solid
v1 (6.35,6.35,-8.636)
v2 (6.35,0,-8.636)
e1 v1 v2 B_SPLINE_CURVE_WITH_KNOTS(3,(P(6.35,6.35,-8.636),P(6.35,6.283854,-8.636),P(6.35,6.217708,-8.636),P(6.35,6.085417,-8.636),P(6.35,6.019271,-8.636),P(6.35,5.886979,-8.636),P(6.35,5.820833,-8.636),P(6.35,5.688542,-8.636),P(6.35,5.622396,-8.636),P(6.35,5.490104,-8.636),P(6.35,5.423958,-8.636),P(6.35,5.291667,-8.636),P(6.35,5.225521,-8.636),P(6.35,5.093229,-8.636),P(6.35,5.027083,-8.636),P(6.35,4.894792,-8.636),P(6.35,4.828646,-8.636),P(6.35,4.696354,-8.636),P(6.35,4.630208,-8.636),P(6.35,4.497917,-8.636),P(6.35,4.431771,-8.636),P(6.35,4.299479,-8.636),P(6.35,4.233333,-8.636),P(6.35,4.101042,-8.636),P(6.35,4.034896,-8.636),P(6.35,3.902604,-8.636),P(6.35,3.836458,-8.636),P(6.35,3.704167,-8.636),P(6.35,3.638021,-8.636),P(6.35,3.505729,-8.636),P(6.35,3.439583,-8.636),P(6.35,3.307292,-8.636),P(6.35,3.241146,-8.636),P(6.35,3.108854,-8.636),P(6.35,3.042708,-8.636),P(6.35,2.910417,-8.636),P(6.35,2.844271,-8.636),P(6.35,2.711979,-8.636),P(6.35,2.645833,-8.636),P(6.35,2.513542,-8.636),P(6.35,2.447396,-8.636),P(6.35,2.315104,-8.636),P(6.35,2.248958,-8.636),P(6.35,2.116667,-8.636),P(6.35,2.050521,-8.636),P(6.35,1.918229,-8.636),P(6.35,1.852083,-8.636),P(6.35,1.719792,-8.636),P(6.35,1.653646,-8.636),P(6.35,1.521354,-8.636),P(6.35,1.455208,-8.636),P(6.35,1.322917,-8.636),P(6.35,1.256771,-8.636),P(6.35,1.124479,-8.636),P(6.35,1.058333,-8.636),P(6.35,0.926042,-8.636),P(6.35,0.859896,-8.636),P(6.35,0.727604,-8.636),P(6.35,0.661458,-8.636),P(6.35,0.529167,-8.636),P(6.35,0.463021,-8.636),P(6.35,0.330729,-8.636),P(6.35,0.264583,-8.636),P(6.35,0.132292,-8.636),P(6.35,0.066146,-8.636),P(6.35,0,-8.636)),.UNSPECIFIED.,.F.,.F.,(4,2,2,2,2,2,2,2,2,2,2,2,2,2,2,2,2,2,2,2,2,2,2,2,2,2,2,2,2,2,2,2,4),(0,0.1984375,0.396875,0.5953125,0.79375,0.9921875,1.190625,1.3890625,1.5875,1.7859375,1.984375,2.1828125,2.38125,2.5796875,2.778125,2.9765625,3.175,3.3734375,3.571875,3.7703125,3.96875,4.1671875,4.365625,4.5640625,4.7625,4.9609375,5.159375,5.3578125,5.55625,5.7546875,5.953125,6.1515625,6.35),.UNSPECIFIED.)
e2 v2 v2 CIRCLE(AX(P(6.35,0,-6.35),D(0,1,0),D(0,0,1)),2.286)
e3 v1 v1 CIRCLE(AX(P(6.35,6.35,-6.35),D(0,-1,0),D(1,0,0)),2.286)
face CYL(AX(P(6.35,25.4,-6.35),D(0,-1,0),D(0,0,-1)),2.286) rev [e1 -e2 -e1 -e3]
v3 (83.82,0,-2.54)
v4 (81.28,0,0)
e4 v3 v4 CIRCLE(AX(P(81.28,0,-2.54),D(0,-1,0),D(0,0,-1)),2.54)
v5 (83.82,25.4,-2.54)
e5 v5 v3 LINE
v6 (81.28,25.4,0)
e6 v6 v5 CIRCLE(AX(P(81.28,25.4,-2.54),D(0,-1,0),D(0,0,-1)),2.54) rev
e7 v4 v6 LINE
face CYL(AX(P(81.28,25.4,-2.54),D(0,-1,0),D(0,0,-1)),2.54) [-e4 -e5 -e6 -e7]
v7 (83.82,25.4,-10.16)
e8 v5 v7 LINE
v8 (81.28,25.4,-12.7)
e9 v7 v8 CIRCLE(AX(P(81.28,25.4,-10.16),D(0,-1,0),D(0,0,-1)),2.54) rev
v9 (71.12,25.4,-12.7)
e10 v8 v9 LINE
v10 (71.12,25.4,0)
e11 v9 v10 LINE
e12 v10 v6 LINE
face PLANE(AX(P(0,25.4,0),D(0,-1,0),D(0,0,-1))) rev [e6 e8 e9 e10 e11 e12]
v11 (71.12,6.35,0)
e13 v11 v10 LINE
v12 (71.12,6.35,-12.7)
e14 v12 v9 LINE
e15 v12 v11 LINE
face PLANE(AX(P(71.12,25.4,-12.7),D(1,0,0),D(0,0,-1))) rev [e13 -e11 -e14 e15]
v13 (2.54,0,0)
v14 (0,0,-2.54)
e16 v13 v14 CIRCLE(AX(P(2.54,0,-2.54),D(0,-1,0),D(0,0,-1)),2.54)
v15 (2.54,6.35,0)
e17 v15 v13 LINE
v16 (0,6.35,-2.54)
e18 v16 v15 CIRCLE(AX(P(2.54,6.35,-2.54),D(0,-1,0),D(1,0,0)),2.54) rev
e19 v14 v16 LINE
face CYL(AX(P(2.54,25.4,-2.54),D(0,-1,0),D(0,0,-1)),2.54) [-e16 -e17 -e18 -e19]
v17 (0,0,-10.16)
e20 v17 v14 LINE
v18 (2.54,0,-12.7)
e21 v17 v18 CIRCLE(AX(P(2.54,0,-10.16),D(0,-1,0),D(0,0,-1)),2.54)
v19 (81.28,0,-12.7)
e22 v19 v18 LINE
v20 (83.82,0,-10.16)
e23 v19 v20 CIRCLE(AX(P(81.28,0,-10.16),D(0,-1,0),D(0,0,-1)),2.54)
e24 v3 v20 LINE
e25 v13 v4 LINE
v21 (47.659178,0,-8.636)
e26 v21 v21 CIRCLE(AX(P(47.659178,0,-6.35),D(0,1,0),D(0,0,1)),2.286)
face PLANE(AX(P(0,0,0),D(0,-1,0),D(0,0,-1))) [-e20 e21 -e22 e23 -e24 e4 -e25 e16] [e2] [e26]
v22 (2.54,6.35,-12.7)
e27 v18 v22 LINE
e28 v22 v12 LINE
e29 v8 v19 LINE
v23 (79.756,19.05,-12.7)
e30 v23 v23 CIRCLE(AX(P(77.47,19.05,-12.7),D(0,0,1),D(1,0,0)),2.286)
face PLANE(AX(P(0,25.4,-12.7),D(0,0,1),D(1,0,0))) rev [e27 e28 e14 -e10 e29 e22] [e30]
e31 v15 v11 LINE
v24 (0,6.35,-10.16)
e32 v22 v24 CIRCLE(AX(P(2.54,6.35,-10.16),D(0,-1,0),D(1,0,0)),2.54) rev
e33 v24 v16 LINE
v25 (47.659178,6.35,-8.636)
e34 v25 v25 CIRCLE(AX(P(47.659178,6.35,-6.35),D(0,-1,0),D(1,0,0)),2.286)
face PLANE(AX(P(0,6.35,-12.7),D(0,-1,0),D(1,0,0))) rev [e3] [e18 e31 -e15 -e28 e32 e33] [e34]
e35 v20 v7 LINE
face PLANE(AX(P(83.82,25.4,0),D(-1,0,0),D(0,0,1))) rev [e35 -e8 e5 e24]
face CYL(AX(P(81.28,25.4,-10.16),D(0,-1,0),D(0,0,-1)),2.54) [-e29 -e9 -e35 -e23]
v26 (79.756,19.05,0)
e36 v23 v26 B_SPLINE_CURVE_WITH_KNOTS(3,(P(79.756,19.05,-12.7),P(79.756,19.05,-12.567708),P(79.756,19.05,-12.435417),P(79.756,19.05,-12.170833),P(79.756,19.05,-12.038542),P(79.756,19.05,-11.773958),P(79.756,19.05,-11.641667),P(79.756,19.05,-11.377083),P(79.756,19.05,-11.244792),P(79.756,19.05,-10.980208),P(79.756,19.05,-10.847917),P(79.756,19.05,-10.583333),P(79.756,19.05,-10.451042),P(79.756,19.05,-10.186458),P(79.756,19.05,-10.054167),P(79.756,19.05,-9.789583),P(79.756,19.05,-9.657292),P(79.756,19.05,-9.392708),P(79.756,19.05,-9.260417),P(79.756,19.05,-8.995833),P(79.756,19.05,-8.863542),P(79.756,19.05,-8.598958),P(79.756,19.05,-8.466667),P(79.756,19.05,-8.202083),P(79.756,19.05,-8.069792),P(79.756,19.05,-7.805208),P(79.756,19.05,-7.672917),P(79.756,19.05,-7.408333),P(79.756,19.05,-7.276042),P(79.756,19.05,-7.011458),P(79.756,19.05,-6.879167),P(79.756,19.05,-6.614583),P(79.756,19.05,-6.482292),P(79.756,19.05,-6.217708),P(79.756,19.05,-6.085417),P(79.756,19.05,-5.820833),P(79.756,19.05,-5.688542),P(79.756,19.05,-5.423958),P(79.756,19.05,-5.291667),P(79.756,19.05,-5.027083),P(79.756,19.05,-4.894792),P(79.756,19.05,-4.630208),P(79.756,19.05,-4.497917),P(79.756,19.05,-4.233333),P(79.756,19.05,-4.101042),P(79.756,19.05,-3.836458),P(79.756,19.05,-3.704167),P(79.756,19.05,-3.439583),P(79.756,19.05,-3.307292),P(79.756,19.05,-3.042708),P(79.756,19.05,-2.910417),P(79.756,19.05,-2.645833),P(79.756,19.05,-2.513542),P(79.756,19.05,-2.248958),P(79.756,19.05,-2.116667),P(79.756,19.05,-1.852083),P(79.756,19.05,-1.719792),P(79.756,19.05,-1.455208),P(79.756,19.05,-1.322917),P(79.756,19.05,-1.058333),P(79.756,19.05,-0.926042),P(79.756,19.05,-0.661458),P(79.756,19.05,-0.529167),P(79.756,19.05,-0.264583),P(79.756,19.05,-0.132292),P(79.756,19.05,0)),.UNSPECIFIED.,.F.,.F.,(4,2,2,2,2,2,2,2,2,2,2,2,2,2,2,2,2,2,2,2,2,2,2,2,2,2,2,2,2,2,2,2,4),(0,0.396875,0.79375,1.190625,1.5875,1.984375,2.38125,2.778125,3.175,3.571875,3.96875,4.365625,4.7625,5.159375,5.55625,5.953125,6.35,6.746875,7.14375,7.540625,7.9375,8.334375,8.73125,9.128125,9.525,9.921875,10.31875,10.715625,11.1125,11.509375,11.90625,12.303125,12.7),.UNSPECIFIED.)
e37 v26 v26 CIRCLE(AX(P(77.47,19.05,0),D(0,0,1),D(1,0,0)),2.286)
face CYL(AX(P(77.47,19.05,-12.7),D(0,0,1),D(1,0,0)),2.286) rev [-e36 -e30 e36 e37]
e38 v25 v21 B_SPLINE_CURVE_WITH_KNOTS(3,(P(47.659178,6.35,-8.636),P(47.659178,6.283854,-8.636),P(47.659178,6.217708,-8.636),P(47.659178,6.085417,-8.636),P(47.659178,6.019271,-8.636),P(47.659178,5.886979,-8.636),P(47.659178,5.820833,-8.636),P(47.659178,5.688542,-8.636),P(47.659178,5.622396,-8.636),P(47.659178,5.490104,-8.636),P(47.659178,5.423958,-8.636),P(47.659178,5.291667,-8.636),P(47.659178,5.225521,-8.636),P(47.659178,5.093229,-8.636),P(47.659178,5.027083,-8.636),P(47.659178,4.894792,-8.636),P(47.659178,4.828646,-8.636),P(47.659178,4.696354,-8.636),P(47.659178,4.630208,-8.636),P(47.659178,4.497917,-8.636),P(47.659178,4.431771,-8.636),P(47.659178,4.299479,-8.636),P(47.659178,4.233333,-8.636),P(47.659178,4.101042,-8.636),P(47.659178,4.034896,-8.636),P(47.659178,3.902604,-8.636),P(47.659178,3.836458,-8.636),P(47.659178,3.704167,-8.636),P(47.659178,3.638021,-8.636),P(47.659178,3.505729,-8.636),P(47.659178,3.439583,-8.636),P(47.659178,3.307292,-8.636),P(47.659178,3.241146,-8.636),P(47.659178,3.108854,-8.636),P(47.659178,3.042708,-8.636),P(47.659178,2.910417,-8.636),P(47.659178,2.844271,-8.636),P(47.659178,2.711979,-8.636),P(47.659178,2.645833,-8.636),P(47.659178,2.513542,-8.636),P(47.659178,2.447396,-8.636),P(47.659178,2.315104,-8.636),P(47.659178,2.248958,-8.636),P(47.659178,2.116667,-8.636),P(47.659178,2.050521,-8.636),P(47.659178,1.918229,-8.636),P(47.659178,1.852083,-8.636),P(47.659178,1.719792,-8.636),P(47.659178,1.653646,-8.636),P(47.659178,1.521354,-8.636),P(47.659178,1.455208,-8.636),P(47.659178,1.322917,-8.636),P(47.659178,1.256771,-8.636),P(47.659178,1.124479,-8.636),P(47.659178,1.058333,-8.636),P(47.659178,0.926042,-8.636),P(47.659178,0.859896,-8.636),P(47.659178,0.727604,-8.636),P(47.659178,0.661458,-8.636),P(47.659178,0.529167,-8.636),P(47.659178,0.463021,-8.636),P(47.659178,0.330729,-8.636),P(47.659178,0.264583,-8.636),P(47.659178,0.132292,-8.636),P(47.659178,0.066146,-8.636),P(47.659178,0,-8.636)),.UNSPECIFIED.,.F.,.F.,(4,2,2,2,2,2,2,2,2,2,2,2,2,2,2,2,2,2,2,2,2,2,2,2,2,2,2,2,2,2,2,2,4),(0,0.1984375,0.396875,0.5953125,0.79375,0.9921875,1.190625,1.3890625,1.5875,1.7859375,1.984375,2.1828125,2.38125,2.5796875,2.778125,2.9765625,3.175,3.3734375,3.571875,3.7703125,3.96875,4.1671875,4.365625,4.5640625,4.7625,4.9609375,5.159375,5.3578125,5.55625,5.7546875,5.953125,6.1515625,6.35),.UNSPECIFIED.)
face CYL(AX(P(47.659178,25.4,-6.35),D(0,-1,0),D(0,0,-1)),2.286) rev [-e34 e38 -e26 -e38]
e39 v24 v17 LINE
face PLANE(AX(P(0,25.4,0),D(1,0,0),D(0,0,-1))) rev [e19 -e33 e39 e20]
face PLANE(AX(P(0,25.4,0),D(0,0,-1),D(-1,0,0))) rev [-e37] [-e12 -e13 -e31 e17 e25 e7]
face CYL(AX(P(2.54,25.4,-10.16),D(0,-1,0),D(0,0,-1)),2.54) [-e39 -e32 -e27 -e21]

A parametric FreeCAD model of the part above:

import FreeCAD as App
import Part
import Sketcher
Q = App.Units.Quantity


def edges_at(feature, points):
    """Names of the edges that pass closest to the given points."""
    edges = feature.Shape.Edges
    near = lambda p: min(range(len(edges)), key=lambda i: edges[i].distToShape(Part.Vertex(*p))[0])
    return sorted({f"Edge{near(p) + 1}" for p in points})


def add_polygon(sketch, points):
    """Adds a closed chain of lines whose ends are joined by coincident constraints."""
    first, n = sketch.GeometryCount, len(points)
    for a, b in zip(points, points[1:] + points[:1]):
        sketch.addGeometry(Part.LineSegment(App.Vector(*a, 0), App.Vector(*b, 0)), False)
    for i in range(n):
        sketch.addConstraint(Sketcher.Constraint("Coincident", first + i, 2, first + (i + 1) % n, 1))

doc = App.newDocument("Part")
body = doc.addObject("PartDesign::Body", "Body")

# Sketch on XZ plane
sketch1 = body.newObject("Sketcher::SketchObject", "Sketch")
sketch1.AttachmentSupport = (doc.getObject("XZ_Plane"), [""])
sketch1.MapMode = "FlatFace"
add_polygon(sketch1, [(0, -12.7), (0, 0), (83.8, 0), (83.8, -12.7)])  # lines 0-3
sketch1.addGeometry(Part.Circle(App.Vector(6.3, -6.3, 0), App.Vector(0, 0, 1), 2.3), False)  # 4
sketch1.addGeometry(Part.Circle(App.Vector(47.7, -6.3, 0), App.Vector(0, 0, 1), 2.3), False)  # 5
sketch1.addConstraint([
    Sketcher.Constraint("Vertical", 0),
    Sketcher.Constraint("Horizontal", 1),
    Sketcher.Constraint("Vertical", 2),
    Sketcher.Constraint("Horizontal", 3),
    Sketcher.Constraint("Coincident", 0, 2, -1, 1),
    Sketcher.Constraint("Equal", 4, 5),
    Sketcher.Constraint("Horizontal", 4, 3, 5, 3),
    Sketcher.Constraint("Diameter", 4, Q("0.18 in")),
    Sketcher.Constraint("DistanceX", 1, 1, 1, 2, Q("3.3 in")),
    Sketcher.Constraint("DistanceY", 0, 1, 0, 2, Q("0.5 in")),
    Sketcher.Constraint("DistanceX", -1, 1, 4, 3, Q("0.25 in")),
    Sketcher.Constraint("DistanceY", 4, 3, -1, 1, Q("0.25 in")),
    Sketcher.Constraint("DistanceX", -1, 1, 5, 3, Q("47.659178 mm")),
])
pad1 = body.newObject("PartDesign::Pad", "Pad")
pad1.Profile = sketch1
pad1.Length = Q("1 in")
pad1.Reversed = True

# Sketch on XY plane
sketch2 = body.newObject("Sketcher::SketchObject", "Sketch001")
sketch2.AttachmentSupport = (doc.getObject("XY_Plane"), [""])
sketch2.MapMode = "FlatFace"
sketch2.addGeometry(Part.Circle(App.Vector(77.5, 19.1, 0), App.Vector(0, 0, 1), 2.3), False)
sketch2.addConstraint([
    Sketcher.Constraint("Diameter", 0, Q("0.18 in")),
    Sketcher.Constraint("DistanceX", -1, 1, 0, 3, Q("3.05 in")),
    Sketcher.Constraint("DistanceY", -1, 1, 0, 3, Q("0.75 in")),
])
pocket1 = body.newObject("PartDesign::Pocket", "Pocket")
pocket1.Profile = sketch2
pocket1.Length = Q("0.5 in")
doc.recompute()

fillet = body.newObject("PartDesign::Fillet", "Fillet")
fillet.Base = (pocket1, edges_at(pocket1, [
    (0, 12.7, -12.7),
    (83.82, 12.7, -12.7),
    (83.82, 12.7, 0),
    (0, 12.7, 0),
]))
fillet.Radius = Q("0.1 in")

# Sketch on XY plane
sketch3 = body.newObject("Sketcher::SketchObject", "Sketch002")
sketch3.AttachmentSupport = (doc.getObject("XY_Plane"), [""])
sketch3.MapMode = "FlatFace"
add_polygon(sketch3, [(0, 25), (0, 6), (71, 6), (71, 25)])  # lines 0-3
sketch3.addConstraint([
    Sketcher.Constraint("Vertical", 0),
    Sketcher.Constraint("Horizontal", 1),
    Sketcher.Constraint("Vertical", 2),
    Sketcher.Constraint("Horizontal", 3),
    Sketcher.Constraint("PointOnObject", 0, 2, -2),
    Sketcher.Constraint("DistanceX", 1, 1, 1, 2, Q("2.8 in")),
    Sketcher.Constraint("DistanceY", -1, 1, 2, 2, Q("1 in")),
    Sketcher.Constraint("DistanceY", 0, 2, 0, 1, Q("0.75 in")),
])
pocket2 = body.newObject("PartDesign::Pocket", "Pocket001")
pocket2.Profile = sketch3
pocket2.Type = "ThroughAll"

doc.recompute()
